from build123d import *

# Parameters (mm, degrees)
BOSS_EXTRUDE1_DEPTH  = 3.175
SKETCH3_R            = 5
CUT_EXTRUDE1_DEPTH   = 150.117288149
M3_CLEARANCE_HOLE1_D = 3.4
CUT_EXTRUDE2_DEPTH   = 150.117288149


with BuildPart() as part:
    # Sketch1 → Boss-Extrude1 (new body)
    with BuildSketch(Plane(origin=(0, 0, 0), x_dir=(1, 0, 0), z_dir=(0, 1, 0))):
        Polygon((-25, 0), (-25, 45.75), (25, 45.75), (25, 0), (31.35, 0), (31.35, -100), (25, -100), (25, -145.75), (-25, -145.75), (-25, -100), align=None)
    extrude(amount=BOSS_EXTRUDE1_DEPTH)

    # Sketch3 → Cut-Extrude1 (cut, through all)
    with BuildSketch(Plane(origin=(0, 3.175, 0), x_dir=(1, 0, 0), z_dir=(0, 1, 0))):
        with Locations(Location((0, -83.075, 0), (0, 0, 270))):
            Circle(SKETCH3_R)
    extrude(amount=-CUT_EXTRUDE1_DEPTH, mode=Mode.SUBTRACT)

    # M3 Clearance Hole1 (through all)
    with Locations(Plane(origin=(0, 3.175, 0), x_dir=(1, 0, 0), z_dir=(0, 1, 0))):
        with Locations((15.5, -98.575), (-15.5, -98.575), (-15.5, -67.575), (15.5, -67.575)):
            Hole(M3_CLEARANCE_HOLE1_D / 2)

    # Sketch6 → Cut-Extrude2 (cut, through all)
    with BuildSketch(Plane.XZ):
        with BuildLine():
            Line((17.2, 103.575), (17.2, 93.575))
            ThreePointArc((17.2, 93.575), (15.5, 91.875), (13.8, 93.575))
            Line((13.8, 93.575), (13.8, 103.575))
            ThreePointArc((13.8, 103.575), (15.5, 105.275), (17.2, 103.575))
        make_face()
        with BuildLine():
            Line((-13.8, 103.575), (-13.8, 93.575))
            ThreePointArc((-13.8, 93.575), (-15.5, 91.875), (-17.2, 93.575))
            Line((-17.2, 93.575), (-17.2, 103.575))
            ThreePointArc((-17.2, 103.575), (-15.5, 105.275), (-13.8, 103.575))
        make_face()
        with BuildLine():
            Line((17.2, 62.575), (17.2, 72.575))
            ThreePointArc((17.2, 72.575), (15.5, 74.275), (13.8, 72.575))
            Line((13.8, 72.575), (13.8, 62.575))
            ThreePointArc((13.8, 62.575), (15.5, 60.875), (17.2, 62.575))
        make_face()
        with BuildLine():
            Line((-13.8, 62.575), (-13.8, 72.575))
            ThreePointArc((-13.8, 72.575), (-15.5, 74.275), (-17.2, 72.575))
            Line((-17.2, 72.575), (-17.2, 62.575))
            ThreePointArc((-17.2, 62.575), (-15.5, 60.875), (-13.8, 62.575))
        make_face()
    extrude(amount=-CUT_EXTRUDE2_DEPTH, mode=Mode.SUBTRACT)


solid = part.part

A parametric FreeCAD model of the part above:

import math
import FreeCAD as App
import Part
import Sketcher

V = App.Vector
Q = App.Units.Quantity

doc = App.newDocument("Part")
body = doc.addObject("PartDesign::Body", "Body")

sketch1 = body.newObject("Sketcher::SketchObject", "Sketch")
sketch1.AttachmentSupport = (doc.getObject("XZ_Plane"), [""])
sketch1.MapMode = "FlatFace"
sketch1.addGeometry([
    Part.LineSegment(V(-25, -46, 0), V(-25, 146, 0)),
    Part.LineSegment(V(-25, 146, 0), V(25, 146, 0)),
    Part.LineSegment(V(25, 146, 0), V(25, 100, 0)),
    Part.LineSegment(V(25, 100, 0), V(31, 100, 0)),
    Part.LineSegment(V(31, 100, 0), V(31, 0, 0)),
    Part.LineSegment(V(31, 0, 0), V(25, 0, 0)),
    Part.LineSegment(V(25, 0, 0), V(25, -46, 0)),
    Part.LineSegment(V(25, -46, 0), V(-25, -46, 0)),
], False)
sketch1.addConstraint([
    Sketcher.Constraint("Coincident", 0, 2, 1, 1),
    Sketcher.Constraint("Coincident", 1, 2, 2, 1),
    Sketcher.Constraint("Coincident", 2, 2, 3, 1),
    Sketcher.Constraint("Coincident", 3, 2, 4, 1),
    Sketcher.Constraint("Coincident", 4, 2, 5, 1),
    Sketcher.Constraint("Coincident", 5, 2, 6, 1),
    Sketcher.Constraint("Coincident", 6, 2, 7, 1),
    Sketcher.Constraint("Coincident", 7, 2, 0, 1),
    Sketcher.Constraint("Vertical", 0),
    Sketcher.Constraint("Horizontal", 1),
    Sketcher.Constraint("Vertical", 2),
    Sketcher.Constraint("Horizontal", 3),
    Sketcher.Constraint("Vertical", 4),
    Sketcher.Constraint("Horizontal", 5),
    Sketcher.Constraint("Vertical", 6),
    Sketcher.Constraint("Horizontal", 7),
    Sketcher.Constraint("PointOnObject", 4, 2, -1),
    Sketcher.Constraint("Vertical", 2, 2, 5, 2),
    Sketcher.Constraint("Equal", 2, 6),
    Sketcher.Constraint("DistanceX", 1, 1, 1, 2, Q("50 mm")),
    Sketcher.Constraint("DistanceY", 4, 2, 4, 1, Q("100 mm")),
    Sketcher.Constraint("DistanceY", 0, 1, 0, 2, Q("191.5 mm")),
    Sketcher.Constraint("DistanceX", 0, 2, -1, 1, Q("25 mm")),
    Sketcher.Constraint("DistanceX", 3, 1, 3, 2, Q("6.35 mm")),
])
pad1 = body.newObject("PartDesign::Pad", "Pad")
pad1.Profile = sketch1
pad1.Length = 3.175
pad1.Reversed = True

sketch2 = body.newObject("Sketcher::SketchObject", "Sketch001")
sketch2.AttachmentSupport = (doc.getObject("XZ_Plane"), [""])
sketch2.MapMode = "FlatFace"
sketch2.AttachmentOffset = App.Placement(V(0, 0, -3.175), App.Rotation())
sketch2.addGeometry(Part.Circle(V(0, 83, 0), V(0, 0, 1), 5), False)
sketch2.addConstraint([
    Sketcher.Constraint("PointOnObject", 0, 3, -2),
    Sketcher.Constraint("Diameter", 0, Q("10 mm")),
    Sketcher.Constraint("DistanceY", -1, 1, 0, 3, Q("83.075 mm")),
])
pocket1 = body.newObject("PartDesign::Pocket", "Pocket")
pocket1.Profile = sketch2
pocket1.Type = "ThroughAll"
pocket1.Reversed = True

sketch3 = body.newObject("Sketcher::SketchObject", "Sketch002")
sketch3.AttachmentSupport = (doc.getObject("XZ_Plane"), [""])
sketch3.MapMode = "FlatFace"
sketch3.AttachmentOffset = App.Placement(V(0, 0, -3.175), App.Rotation())
sketch3.addGeometry([
    Part.Circle(V(15.5, 98.6, 0), V(0, 0, 1), 1.7),
    Part.Circle(V(-15.5, 98.6, 0), V(0, 0, 1), 1.7),
    Part.Circle(V(-15.5, 67.6, 0), V(0, 0, 1), 1.7),
    Part.Circle(V(15.5, 67.6, 0), V(0, 0, 1), 1.7),
], False)
sketch3.addConstraint([
    Sketcher.Constraint("Equal", 0, 1),
    Sketcher.Constraint("Equal", 1, 2),
    Sketcher.Constraint("Equal", 2, 3),
    Sketcher.Constraint("Symmetric", 0, 3, 1, 3, -2),
    Sketcher.Constraint("Symmetric", 2, 3, 3, 3, -2),
    Sketcher.Constraint("Vertical", 1, 3, 2, 3),
    Sketcher.Constraint("Diameter", 0, Q("3.4 mm")),
    Sketcher.Constraint("DistanceX", 1, 3, 0, 3, Q("31 mm")),
    Sketcher.Constraint("DistanceY", 2, 3, 1, 3, Q("31 mm")),
    Sketcher.Constraint("DistanceY", -1, 1, 0, 3, Q("98.575 mm")),
])
doc.recompute()
hole = body.newObject("PartDesign::Hole", "Hole")
hole.Profile = sketch3
hole.ThreadType = "None"
hole.Diameter = 3.4
hole.DepthType = "ThroughAll"
hole.Reversed = True

sketch4 = body.newObject("Sketcher::SketchObject", "Sketch003")
sketch4.AttachmentSupport = (doc.getObject("XZ_Plane"), [""])
sketch4.MapMode = "FlatFace"
sketch4.addGeometry([
    Part.LineSegment(V(17.2, 93.6, 0), V(17.2, 103.6, 0)),
    Part.ArcOfCircle(Part.Circle(V(15.5, 103.6, 0), V(0, 0, 1), 1.7), math.radians(0), math.radians(180)),
    Part.LineSegment(V(13.8, 103.6, 0), V(13.8, 93.6, 0)),
    Part.ArcOfCircle(Part.Circle(V(15.5, 93.6, 0), V(0, 0, 1), 1.7), math.radians(180), math.radians(360)),
    Part.LineSegment(V(-13.8, 93.6, 0), V(-13.8, 103.6, 0)),
    Part.ArcOfCircle(Part.Circle(V(-15.5, 103.6, 0), V(0, 0, 1), 1.7), math.radians(0), math.radians(180)),
    Part.LineSegment(V(-17.2, 103.6, 0), V(-17.2, 93.6, 0)),
    Part.ArcOfCircle(Part.Circle(V(-15.5, 93.6, 0), V(0, 0, 1), 1.7), math.radians(180), math.radians(360)),
    Part.LineSegment(V(17.2, 62.6, 0), V(17.2, 72.6, 0)),
    Part.ArcOfCircle(Part.Circle(V(15.5, 72.6, 0), V(0, 0, 1), 1.7), math.radians(0), math.radians(180)),
    Part.LineSegment(V(13.8, 72.6, 0), V(13.8, 62.6, 0)),
    Part.ArcOfCircle(Part.Circle(V(15.5, 62.6, 0), V(0, 0, 1), 1.7), math.radians(180), math.radians(360)),
    Part.LineSegment(V(-13.8, 62.6, 0), V(-13.8, 72.6, 0)),
    Part.ArcOfCircle(Part.Circle(V(-15.5, 72.6, 0), V(0, 0, 1), 1.7), math.radians(0), math.radians(180)),
    Part.LineSegment(V(-17.2, 72.6, 0), V(-17.2, 62.6, 0)),
    Part.ArcOfCircle(Part.Circle(V(-15.5, 62.6, 0), V(0, 0, 1), 1.7), math.radians(180), math.radians(360)),
], False)
sketch4.addConstraint([
    Sketcher.Constraint("Tangent", 0, 2, 1, 1),
    Sketcher.Constraint("Tangent", 1, 2, 2, 1),
    Sketcher.Constraint("Tangent", 2, 2, 3, 1),
    Sketcher.Constraint("Tangent", 3, 2, 0, 1),
    Sketcher.Constraint("Tangent", 4, 2, 5, 1),
    Sketcher.Constraint("Tangent", 5, 2, 6, 1),
    Sketcher.Constraint("Tangent", 6, 2, 7, 1),
    Sketcher.Constraint("Tangent", 7, 2, 4, 1),
    Sketcher.Constraint("Tangent", 8, 2, 9, 1),
    Sketcher.Constraint("Tangent", 9, 2, 10, 1),
    Sketcher.Constraint("Tangent", 10, 2, 11, 1),
    Sketcher.Constraint("Tangent", 11, 2, 8, 1),
    Sketcher.Constraint("Tangent", 12, 2, 13, 1),
    Sketcher.Constraint("Tangent", 13, 2, 14, 1),
    Sketcher.Constraint("Tangent", 14, 2, 15, 1),
    Sketcher.Constraint("Tangent", 15, 2, 12, 1),
    Sketcher.Constraint("Vertical", 0),
    Sketcher.Constraint("Vertical", 2),
    Sketcher.Constraint("Vertical", 4),
    Sketcher.Constraint("Vertical", 6),
    Sketcher.Constraint("Vertical", 8),
    Sketcher.Constraint("Vertical", 10),
    Sketcher.Constraint("Vertical", 12),
    Sketcher.Constraint("Vertical", 14),
    Sketcher.Constraint("Equal", 3, 5),
    Sketcher.Constraint("Equal", 7, 9),
    Sketcher.Constraint("Equal", 11, 13),
    Sketcher.Constraint("Symmetric", 1, 3, 5, 3, -2),
    Sketcher.Constraint("Symmetric", 9, 3, 13, 3, -2),
    Sketcher.Constraint("Horizontal", 3, 3, 7, 3),
    Sketcher.Constraint("Horizontal", 11, 3, 15, 3),
    Sketcher.Constraint("Vertical", 3, 3, 9, 3),
    Sketcher.Constraint("Equal", 6, 8),
    Sketcher.Constraint("Radius", 1, Q("1.7 mm")),
    Sketcher.Constraint("DistanceY", 0, 1, 0, 2, Q("10 mm")),
    Sketcher.Constraint("DistanceX", 5, 3, 1, 3, Q("31 mm")),
    Sketcher.Constraint("DistanceY", 9, 3, 3, 3, Q("21 mm")),
    Sketcher.Constraint("DistanceY", -1, 1, 1, 3, Q("103.575 mm")),
])
pocket2 = body.newObject("PartDesign::Pocket", "Pocket001")
pocket2.Profile = sketch4
pocket2.Type = "ThroughAll"

doc.recompute()
